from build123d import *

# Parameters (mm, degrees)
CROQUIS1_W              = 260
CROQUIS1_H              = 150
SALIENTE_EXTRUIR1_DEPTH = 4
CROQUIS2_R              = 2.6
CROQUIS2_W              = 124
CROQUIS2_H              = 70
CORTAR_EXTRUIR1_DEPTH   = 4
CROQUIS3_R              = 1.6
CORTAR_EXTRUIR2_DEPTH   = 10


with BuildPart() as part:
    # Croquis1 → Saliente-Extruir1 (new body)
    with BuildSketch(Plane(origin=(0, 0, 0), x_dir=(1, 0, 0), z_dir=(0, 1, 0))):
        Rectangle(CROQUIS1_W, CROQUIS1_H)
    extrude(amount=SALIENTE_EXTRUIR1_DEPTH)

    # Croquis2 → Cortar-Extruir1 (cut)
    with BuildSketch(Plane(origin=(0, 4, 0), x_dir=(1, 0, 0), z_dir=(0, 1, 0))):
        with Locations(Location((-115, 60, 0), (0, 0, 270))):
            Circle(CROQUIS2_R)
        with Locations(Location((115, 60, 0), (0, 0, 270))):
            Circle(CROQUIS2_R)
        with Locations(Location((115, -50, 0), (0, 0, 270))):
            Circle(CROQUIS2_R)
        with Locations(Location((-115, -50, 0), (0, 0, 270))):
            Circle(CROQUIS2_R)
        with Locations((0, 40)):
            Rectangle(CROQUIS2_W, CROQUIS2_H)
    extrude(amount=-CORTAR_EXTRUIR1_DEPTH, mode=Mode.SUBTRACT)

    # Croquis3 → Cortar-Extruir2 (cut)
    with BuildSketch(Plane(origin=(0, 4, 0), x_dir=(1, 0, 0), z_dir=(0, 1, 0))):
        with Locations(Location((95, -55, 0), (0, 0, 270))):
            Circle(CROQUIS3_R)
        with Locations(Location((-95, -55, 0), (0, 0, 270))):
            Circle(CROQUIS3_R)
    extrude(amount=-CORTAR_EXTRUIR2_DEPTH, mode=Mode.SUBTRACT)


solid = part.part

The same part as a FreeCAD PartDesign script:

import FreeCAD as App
import Part
import Sketcher
Q = App.Units.Quantity

doc = App.newDocument("Part")
body = doc.addObject("PartDesign::Body", "Body")

sketch1 = body.newObject("Sketcher::SketchObject", "Sketch")
sketch1.AttachmentSupport = (doc.getObject("XZ_Plane"), [""])
sketch1.MapMode = "FlatFace"
sketch1.addGeometry([
    Part.LineSegment(App.Vector(-130, -75, 0), App.Vector(-130, 75, 0)),
    Part.LineSegment(App.Vector(-130, 75, 0), App.Vector(130, 75, 0)),
    Part.LineSegment(App.Vector(130, 75, 0), App.Vector(130, -75, 0)),
    Part.LineSegment(App.Vector(130, -75, 0), App.Vector(-130, -75, 0)),
], False)
sketch1.addConstraint([
    Sketcher.Constraint("Coincident", 0, 2, 1, 1),
    Sketcher.Constraint("Coincident", 1, 2, 2, 1),
    Sketcher.Constraint("Coincident", 2, 2, 3, 1),
    Sketcher.Constraint("Coincident", 3, 2, 0, 1),
    Sketcher.Constraint("Vertical", 0),
    Sketcher.Constraint("Horizontal", 1),
    Sketcher.Constraint("Vertical", 2),
    Sketcher.Constraint("Horizontal", 3),
    Sketcher.Constraint("Symmetric", 0, 2, 2, 2, -1, 1),
    Sketcher.Constraint("DistanceX", 1, 1, 1, 2, Q("260 mm")),
    Sketcher.Constraint("DistanceY", 0, 1, 0, 2, Q("150 mm")),
])
pad1 = body.newObject("PartDesign::Pad", "Pad")
pad1.Profile = sketch1
pad1.Length = 4
pad1.Reversed = True

sketch2 = body.newObject("Sketcher::SketchObject", "Sketch001")
sketch2.AttachmentSupport = (doc.getObject("XZ_Plane"), [""])
sketch2.MapMode = "FlatFace"
sketch2.AttachmentOffset = App.Placement(App.Vector(0, 0, -4), App.Rotation())
sketch2.addGeometry([
    Part.Circle(App.Vector(-115, -60, 0), App.Vector(0, 0, 1), 2.6),
    Part.Circle(App.Vector(115, -60, 0), App.Vector(0, 0, 1), 2.6),
    Part.Circle(App.Vector(115, 50, 0), App.Vector(0, 0, 1), 2.6),
    Part.Circle(App.Vector(-115, 50, 0), App.Vector(0, 0, 1), 2.6),
    Part.LineSegment(App.Vector(-62, -75, 0), App.Vector(-62, -5, 0)),
    Part.LineSegment(App.Vector(-62, -5, 0), App.Vector(62, -5, 0)),
    Part.LineSegment(App.Vector(62, -5, 0), App.Vector(62, -75, 0)),
    Part.LineSegment(App.Vector(62, -75, 0), App.Vector(-62, -75, 0)),
], False)
sketch2.addConstraint([
    Sketcher.Constraint("Coincident", 4, 2, 5, 1),
    Sketcher.Constraint("Coincident", 5, 2, 6, 1),
    Sketcher.Constraint("Coincident", 6, 2, 7, 1),
    Sketcher.Constraint("Coincident", 7, 2, 4, 1),
    Sketcher.Constraint("Vertical", 4),
    Sketcher.Constraint("Horizontal", 5),
    Sketcher.Constraint("Vertical", 6),
    Sketcher.Constraint("Horizontal", 7),
    Sketcher.Constraint("Equal", 0, 1),
    Sketcher.Constraint("Equal", 1, 2),
    Sketcher.Constraint("Equal", 2, 3),
    Sketcher.Constraint("Symmetric", 0, 3, 1, 3, -2),
    Sketcher.Constraint("Symmetric", 2, 3, 3, 3, -2),
    Sketcher.Constraint("Vertical", 1, 3, 2, 3),
    Sketcher.Constraint("Diameter", 0, Q("5.2 mm")),
    Sketcher.Constraint("DistanceX", 5, 1, 5, 2, Q("124 mm")),
    Sketcher.Constraint("DistanceY", 4, 1, 4, 2, Q("70 mm")),
    Sketcher.Constraint("DistanceX", 0, 3, -1, 1, Q("115 mm")),
    Sketcher.Constraint("DistanceY", 0, 3, -1, 1, Q("60 mm")),
    Sketcher.Constraint("DistanceY", -1, 1, 2, 3, Q("50 mm")),
    Sketcher.Constraint("DistanceX", 4, 2, -1, 1, Q("62 mm")),
    Sketcher.Constraint("DistanceY", 4, 2, -1, 1, Q("5 mm")),
])
pocket1 = body.newObject("PartDesign::Pocket", "Pocket")
pocket1.Profile = sketch2
pocket1.Length = 4
pocket1.Reversed = True

sketch3 = body.newObject("Sketcher::SketchObject", "Sketch002")
sketch3.AttachmentSupport = (doc.getObject("XZ_Plane"), [""])
sketch3.MapMode = "FlatFace"
sketch3.AttachmentOffset = App.Placement(App.Vector(0, 0, -4), App.Rotation())
sketch3.addGeometry([
    Part.Circle(App.Vector(95, 55, 0), App.Vector(0, 0, 1), 1.6),
    Part.Circle(App.Vector(-95, 55, 0), App.Vector(0, 0, 1), 1.6),
], False)
sketch3.addConstraint([
    Sketcher.Constraint("Equal", 0, 1),
    Sketcher.Constraint("Symmetric", 0, 3, 1, 3, -2),
    Sketcher.Constraint("Diameter", 0, Q("3.2 mm")),
    Sketcher.Constraint("DistanceX", -1, 1, 0, 3, Q("95 mm")),
    Sketcher.Constraint("DistanceY", -1, 1, 0, 3, Q("55 mm")),
])
pocket2 = body.newObject("PartDesign::Pocket", "Pocket001")
pocket2.Profile = sketch3
pocket2.Length = 10
pocket2.Reversed = True

doc.recompute()
